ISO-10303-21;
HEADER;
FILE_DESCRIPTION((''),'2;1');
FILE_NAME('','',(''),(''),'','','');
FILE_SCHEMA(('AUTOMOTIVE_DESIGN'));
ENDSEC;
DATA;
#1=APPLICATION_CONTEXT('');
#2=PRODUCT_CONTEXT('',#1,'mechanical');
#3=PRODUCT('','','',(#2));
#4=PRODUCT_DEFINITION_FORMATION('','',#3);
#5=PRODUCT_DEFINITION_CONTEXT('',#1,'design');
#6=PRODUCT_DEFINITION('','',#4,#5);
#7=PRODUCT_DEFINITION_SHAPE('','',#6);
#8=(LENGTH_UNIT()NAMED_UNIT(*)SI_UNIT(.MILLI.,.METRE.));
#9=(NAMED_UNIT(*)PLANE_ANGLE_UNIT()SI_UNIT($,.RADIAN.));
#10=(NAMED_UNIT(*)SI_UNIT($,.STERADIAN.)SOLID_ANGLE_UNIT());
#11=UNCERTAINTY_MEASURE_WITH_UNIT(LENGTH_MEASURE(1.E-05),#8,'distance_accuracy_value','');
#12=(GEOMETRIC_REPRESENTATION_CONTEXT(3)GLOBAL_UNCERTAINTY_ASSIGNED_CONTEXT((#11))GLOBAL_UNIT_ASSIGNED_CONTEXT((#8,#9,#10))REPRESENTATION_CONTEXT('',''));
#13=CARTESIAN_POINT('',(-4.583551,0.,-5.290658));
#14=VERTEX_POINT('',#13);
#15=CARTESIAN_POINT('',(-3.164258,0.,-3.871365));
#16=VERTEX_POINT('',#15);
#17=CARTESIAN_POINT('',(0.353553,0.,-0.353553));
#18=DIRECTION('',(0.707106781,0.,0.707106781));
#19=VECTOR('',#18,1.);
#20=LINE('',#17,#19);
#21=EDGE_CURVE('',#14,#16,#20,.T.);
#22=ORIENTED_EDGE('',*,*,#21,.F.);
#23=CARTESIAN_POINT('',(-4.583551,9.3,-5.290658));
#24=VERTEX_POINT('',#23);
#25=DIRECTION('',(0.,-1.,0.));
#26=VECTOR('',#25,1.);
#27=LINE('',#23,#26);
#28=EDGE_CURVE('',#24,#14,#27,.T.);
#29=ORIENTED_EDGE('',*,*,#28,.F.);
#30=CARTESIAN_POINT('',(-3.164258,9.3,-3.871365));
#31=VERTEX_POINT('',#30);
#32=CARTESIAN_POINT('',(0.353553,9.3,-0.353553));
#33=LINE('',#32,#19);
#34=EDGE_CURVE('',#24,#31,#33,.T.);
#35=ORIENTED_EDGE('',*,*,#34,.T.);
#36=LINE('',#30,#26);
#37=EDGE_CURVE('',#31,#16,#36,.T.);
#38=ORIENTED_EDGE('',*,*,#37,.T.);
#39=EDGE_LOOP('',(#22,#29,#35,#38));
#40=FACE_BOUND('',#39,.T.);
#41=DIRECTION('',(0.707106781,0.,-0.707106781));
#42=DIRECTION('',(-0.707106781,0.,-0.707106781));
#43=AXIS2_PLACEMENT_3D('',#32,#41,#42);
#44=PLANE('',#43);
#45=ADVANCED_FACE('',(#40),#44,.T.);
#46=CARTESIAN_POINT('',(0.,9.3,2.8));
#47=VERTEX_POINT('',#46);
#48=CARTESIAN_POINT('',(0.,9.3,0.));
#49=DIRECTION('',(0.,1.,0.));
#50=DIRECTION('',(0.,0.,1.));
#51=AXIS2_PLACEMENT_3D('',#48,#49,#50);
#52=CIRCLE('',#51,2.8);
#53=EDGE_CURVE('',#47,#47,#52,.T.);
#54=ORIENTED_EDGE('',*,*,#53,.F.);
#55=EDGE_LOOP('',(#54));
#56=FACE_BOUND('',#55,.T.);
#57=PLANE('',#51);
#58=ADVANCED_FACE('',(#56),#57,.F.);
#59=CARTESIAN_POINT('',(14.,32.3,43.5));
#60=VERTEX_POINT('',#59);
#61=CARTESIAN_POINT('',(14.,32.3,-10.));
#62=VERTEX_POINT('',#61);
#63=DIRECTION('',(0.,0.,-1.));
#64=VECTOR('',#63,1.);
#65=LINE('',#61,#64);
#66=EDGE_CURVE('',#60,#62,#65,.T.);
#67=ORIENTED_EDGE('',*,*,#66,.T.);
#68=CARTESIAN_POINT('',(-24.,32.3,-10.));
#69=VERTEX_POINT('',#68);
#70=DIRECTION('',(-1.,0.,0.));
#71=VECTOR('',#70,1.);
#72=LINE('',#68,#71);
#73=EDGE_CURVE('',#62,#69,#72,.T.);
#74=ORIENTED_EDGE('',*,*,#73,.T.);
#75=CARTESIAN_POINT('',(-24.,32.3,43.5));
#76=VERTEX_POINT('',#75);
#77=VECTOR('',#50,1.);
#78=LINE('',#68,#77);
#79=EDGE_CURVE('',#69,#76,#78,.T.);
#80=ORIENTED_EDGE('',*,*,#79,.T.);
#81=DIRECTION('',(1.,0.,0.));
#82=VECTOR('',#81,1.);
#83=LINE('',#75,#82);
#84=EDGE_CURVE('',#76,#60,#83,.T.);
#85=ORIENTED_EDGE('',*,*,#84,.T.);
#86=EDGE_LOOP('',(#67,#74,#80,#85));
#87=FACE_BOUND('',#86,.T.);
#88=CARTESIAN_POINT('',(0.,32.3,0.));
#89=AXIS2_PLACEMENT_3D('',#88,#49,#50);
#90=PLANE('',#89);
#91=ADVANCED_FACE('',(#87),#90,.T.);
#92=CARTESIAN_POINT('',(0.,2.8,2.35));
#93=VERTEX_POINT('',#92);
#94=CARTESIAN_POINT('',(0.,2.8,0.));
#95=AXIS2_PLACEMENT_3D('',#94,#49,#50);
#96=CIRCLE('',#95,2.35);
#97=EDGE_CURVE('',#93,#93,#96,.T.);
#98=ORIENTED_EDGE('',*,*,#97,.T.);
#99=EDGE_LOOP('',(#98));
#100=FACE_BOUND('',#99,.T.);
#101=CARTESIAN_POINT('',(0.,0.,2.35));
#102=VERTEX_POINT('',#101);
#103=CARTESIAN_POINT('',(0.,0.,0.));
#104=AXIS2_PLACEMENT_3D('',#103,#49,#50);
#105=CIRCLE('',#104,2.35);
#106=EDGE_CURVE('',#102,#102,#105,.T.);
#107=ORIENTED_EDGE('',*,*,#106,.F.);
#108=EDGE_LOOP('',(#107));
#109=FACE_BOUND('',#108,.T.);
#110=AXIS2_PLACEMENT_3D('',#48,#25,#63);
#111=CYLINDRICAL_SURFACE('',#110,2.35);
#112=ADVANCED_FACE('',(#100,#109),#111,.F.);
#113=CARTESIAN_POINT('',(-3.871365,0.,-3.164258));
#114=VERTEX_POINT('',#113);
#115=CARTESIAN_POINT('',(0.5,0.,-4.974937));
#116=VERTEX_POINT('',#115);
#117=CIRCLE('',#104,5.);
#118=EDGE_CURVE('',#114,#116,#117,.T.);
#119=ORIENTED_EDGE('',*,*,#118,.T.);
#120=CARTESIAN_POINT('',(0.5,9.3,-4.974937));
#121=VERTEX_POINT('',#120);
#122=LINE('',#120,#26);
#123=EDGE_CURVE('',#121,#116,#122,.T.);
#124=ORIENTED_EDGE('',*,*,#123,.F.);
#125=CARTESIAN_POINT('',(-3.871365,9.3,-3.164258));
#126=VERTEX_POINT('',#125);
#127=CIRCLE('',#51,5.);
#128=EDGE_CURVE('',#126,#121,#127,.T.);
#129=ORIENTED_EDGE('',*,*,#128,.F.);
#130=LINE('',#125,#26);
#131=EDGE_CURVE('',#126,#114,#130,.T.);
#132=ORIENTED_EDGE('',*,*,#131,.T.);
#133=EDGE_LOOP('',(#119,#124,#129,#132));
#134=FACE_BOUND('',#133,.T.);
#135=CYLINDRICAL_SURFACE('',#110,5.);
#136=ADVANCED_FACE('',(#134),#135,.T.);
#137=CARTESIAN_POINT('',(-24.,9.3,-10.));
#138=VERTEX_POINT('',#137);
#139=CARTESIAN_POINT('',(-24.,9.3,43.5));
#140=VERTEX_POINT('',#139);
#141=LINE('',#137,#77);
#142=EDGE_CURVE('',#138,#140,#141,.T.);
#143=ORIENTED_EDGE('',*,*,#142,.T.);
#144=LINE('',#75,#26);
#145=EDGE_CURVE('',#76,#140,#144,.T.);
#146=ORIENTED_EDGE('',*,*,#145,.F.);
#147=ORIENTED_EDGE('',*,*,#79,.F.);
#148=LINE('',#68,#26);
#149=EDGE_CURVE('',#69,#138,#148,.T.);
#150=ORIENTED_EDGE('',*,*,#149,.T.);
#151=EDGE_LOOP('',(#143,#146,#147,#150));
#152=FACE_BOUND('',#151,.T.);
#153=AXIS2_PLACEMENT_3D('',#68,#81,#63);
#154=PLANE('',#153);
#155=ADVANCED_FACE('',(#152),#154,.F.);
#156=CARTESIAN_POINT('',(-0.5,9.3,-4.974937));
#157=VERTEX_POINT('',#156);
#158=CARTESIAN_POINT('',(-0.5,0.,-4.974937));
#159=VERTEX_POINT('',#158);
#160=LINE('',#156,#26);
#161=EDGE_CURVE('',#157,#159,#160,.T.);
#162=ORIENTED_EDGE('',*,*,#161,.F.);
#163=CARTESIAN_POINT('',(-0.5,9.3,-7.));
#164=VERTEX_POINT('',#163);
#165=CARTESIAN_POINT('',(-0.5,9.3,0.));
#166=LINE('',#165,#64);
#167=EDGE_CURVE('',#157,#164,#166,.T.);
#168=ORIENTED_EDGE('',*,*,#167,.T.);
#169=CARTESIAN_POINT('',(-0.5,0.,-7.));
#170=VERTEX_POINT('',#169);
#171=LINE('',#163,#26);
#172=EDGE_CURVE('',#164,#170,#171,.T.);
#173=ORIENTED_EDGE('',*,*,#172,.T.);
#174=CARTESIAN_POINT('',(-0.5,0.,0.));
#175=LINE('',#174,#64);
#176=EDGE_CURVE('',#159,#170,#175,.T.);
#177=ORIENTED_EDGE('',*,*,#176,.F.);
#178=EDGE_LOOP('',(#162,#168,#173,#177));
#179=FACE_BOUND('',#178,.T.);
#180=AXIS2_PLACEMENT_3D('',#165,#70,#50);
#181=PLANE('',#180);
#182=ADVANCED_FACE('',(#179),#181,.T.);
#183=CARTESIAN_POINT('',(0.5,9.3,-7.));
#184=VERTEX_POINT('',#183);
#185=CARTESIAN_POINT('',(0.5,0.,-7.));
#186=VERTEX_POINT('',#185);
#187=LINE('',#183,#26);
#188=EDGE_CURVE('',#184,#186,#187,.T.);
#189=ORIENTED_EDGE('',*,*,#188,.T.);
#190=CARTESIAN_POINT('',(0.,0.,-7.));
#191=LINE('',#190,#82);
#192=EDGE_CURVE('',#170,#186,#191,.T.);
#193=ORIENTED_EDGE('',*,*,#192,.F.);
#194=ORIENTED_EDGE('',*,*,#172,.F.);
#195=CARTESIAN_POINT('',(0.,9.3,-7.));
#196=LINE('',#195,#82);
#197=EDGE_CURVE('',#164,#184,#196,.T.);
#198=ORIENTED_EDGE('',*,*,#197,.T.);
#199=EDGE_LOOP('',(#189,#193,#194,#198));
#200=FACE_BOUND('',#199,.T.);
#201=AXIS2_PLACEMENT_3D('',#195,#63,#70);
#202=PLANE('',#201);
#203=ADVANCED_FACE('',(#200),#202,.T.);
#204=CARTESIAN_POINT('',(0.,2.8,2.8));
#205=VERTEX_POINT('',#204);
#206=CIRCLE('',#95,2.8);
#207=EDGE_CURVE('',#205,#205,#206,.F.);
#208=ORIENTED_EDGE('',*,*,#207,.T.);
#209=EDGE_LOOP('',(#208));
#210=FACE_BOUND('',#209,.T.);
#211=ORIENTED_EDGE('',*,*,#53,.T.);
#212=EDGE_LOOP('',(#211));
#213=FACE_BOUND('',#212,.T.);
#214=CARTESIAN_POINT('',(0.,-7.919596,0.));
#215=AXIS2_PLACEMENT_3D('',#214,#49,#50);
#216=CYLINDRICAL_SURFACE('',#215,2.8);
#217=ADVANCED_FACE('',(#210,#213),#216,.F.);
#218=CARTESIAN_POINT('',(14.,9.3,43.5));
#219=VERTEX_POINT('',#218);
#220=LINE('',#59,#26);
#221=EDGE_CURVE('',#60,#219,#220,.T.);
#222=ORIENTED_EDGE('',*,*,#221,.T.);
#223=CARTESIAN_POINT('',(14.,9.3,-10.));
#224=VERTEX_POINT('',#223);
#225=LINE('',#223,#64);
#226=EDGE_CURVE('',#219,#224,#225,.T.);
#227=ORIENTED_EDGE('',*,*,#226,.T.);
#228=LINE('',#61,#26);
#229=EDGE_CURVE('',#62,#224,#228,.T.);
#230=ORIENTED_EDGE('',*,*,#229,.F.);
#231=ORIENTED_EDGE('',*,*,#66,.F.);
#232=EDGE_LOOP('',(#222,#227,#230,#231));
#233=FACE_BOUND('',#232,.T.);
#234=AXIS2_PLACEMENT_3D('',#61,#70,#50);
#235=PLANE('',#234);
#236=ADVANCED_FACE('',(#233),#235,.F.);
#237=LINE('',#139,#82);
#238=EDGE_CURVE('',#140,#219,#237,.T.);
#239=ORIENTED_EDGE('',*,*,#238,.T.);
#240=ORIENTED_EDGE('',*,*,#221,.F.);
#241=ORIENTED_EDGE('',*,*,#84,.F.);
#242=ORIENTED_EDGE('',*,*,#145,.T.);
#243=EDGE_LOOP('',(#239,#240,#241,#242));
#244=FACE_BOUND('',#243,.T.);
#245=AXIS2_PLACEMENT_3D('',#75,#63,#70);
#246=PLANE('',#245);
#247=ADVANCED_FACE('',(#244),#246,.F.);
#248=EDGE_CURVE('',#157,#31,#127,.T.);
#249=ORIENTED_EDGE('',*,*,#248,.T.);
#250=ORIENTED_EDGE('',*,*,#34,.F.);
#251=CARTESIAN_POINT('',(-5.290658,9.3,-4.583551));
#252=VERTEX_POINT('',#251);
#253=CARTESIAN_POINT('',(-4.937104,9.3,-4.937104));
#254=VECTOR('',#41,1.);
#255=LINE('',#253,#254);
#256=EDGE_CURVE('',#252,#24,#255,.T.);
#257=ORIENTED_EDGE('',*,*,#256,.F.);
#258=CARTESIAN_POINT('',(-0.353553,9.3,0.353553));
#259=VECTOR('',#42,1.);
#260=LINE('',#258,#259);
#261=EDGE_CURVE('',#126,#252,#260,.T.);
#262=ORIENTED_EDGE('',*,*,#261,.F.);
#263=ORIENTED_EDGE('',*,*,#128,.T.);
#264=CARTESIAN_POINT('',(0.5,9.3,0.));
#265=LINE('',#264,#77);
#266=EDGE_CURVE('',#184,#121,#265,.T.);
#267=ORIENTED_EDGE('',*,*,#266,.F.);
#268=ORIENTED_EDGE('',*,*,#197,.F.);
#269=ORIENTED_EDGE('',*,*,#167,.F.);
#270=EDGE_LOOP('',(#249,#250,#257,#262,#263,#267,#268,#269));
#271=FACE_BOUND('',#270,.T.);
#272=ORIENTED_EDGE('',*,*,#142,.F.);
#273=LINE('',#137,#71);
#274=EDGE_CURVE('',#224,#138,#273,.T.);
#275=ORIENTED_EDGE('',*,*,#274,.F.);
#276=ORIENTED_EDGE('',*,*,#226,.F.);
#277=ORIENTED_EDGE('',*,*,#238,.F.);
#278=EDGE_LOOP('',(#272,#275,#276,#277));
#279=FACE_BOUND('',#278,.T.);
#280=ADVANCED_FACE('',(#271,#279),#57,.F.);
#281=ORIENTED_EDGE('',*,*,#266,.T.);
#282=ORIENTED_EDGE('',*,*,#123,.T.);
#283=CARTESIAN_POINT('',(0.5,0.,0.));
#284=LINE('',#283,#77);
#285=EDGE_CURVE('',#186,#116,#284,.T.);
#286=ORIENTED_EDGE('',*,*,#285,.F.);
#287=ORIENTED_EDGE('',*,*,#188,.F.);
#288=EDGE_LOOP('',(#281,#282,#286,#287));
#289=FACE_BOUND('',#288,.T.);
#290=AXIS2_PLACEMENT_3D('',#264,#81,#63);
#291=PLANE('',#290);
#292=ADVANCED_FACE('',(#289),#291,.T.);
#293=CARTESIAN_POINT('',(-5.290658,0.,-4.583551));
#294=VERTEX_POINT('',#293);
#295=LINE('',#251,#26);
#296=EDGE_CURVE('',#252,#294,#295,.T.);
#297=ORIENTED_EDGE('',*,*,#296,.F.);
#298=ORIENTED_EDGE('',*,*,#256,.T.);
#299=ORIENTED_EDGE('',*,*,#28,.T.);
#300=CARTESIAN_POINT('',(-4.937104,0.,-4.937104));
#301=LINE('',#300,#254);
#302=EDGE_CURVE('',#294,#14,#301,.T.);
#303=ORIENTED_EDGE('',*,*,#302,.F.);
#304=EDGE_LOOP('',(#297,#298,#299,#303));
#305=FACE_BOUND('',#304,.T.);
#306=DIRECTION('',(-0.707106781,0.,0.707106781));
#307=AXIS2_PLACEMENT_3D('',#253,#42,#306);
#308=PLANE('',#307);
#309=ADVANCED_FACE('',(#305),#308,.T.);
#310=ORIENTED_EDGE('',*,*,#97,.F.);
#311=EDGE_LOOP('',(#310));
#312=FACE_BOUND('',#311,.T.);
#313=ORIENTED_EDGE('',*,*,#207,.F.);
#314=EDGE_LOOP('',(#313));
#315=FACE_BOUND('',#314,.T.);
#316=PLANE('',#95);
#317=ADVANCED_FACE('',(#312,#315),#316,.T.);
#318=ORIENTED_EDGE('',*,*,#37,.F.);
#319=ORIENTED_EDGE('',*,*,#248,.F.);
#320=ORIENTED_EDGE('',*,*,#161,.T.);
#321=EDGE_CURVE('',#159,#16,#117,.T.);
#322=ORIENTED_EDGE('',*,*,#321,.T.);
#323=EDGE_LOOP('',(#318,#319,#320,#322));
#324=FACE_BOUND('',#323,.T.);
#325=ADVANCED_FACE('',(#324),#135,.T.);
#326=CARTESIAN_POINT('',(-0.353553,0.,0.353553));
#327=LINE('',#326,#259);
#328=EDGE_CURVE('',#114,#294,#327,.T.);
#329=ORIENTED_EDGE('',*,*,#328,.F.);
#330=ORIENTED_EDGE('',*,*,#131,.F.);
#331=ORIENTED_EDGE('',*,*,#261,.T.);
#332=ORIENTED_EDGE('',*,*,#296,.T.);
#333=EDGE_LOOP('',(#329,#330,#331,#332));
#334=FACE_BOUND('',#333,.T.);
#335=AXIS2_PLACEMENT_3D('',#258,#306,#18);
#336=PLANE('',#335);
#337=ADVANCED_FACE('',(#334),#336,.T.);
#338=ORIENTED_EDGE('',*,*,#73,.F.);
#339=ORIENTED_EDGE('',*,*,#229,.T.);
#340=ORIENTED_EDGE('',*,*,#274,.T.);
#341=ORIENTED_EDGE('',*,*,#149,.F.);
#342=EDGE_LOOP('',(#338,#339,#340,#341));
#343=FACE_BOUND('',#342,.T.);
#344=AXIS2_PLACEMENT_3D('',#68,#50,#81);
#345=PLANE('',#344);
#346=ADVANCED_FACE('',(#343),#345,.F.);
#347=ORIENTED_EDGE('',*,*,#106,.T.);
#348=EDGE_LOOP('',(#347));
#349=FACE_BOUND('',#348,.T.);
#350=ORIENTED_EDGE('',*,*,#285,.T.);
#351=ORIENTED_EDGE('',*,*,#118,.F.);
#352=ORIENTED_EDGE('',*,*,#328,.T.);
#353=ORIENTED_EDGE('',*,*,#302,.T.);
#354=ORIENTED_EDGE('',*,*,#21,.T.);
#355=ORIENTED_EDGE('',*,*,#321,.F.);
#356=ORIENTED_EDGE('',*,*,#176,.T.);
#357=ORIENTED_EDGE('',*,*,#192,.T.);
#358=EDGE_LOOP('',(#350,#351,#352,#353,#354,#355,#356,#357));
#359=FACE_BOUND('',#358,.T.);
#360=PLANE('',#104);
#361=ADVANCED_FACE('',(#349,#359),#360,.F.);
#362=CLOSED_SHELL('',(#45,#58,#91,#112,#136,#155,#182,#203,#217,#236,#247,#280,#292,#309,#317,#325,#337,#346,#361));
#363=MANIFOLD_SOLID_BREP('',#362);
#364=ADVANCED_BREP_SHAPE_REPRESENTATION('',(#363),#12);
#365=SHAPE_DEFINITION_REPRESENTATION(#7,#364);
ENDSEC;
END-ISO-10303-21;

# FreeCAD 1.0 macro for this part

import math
import FreeCAD as App
import Part
import Sketcher
Q = App.Units.Quantity

doc = App.newDocument("Part")
params = doc.addObject("Spreadsheet::Sheet", "Params")
for row, (alias, value) in enumerate([
    ("sketch1_radius", "5 mm"),
    ("sketch1_diameter", "4.7 mm"),
    ("sketch1_width", "1 mm"),
    ("sketch1_length", "1 mm"),
    ("pad1_length", "9.3 mm"),
    ("sketch2_diameter", "5.6 mm"),
    ("pocket1_length", "6.5 mm"),
    ("sketch3_width", "38 mm"),
    ("sketch3_height", "53.5 mm"),
    ("pad2_length", "23 mm"),
], start=1):
    params.set(f"A{row}", alias)
    params.set(f"B{row}", "=" + value)
    params.setAlias(f"B{row}", alias)

body = doc.addObject("PartDesign::Body", "Body")

# Sketch on XZ plane
sketch1 = body.newObject("Sketcher::SketchObject", "Sketch")
sketch1.AttachmentSupport = (doc.getObject("XZ_Plane"), [""])
sketch1.MapMode = "FlatFace"
sketch1.addGeometry(Part.LineSegment(App.Vector(-0.5, -7, 0), App.Vector(-0.5, -5, 0)), False)
sketch1.addGeometry(Part.ArcOfCircle(Part.Circle(App.Vector(0, 0, 0), App.Vector(0, 0, 1), 5), math.radians(-129), math.radians(-96)), False)
sketch1.addGeometry(Part.LineSegment(App.Vector(-3.2, -3.9, 0), App.Vector(-4.6, -5.3, 0)), False)
sketch1.addGeometry(Part.LineSegment(App.Vector(-4.6, -5.3, 0), App.Vector(-5.3, -4.6, 0)), False)
sketch1.addGeometry(Part.LineSegment(App.Vector(-5.3, -4.6, 0), App.Vector(-3.9, -3.2, 0)), False)
sketch1.addGeometry(Part.ArcOfCircle(Part.Circle(App.Vector(0, 0, 0), App.Vector(0, 0, 1), 5), math.radians(-84), math.radians(219)), False)
sketch1.addGeometry(Part.LineSegment(App.Vector(0.5, -5, 0), App.Vector(0.5, -7, 0)), False)
sketch1.addGeometry(Part.LineSegment(App.Vector(0.5, -7, 0), App.Vector(-0.5, -7, 0)), False)
sketch1.addGeometry(Part.Circle(App.Vector(0, 0, 0), App.Vector(0, 0, 1), 2.4), False)
sketch1.addConstraint(Sketcher.Constraint("Coincident", 0, 2, 1, 2))
sketch1.addConstraint(Sketcher.Constraint("Coincident", 1, 1, 2, 1))
sketch1.addConstraint(Sketcher.Constraint("Coincident", 2, 2, 3, 1))
sketch1.addConstraint(Sketcher.Constraint("Coincident", 3, 2, 4, 1))
sketch1.addConstraint(Sketcher.Constraint("Coincident", 4, 2, 5, 2))
sketch1.addConstraint(Sketcher.Constraint("Coincident", 5, 1, 6, 1))
sketch1.addConstraint(Sketcher.Constraint("Coincident", 6, 2, 7, 1))
sketch1.addConstraint(Sketcher.Constraint("Coincident", 7, 2, 0, 1))
sketch1.addConstraint(Sketcher.Constraint("Vertical", 0))
sketch1.addConstraint(Sketcher.Constraint("Vertical", 6))
sketch1.addConstraint(Sketcher.Constraint("Horizontal", 7))
sketch1.addConstraint(Sketcher.Constraint("Coincident", 1, 3, -1, 1))
sketch1.addConstraint(Sketcher.Constraint("Coincident", 5, 3, -1, 1))
sketch1.addConstraint(Sketcher.Constraint("Coincident", 8, 3, -1, 1))
sketch1.addConstraint(Sketcher.Constraint("Equal", 1, 5))
sketch1.addConstraint(Sketcher.Constraint("Perpendicular", 2, 3))
sketch1.addConstraint(Sketcher.Constraint("Perpendicular", 3, 4))
sketch1.addConstraint(Sketcher.Constraint("Horizontal", 0, 2, 5, 1))
sketch1.addConstraint(Sketcher.Constraint("Equal", 2, 4))
sketch1.addConstraint(Sketcher.Constraint("Radius", 1, Q("5 mm")))
sketch1.addConstraint(Sketcher.Constraint("Diameter", 8, Q("4.7 mm")))
sketch1.addConstraint(Sketcher.Constraint("DistanceX", 7, 2, 7, 1, Q("1 mm")))
sketch1.addConstraint(Sketcher.Constraint("Angle", 2, Q("-135 deg")))
sketch1.addConstraint(Sketcher.Constraint("Distance", 3, Q("1 mm")))
sketch1.addConstraint(Sketcher.Constraint("DistanceY", 6, 2, -1, 1, Q("7 mm")))
sketch1.addConstraint(Sketcher.Constraint("DistanceX", 3, 2, 1, 1, Q("2.126399 mm")))
sketch1.setExpression("Constraints[19]", "Params.sketch1_radius")
sketch1.setExpression("Constraints[20]", "Params.sketch1_diameter")
sketch1.setExpression("Constraints[21]", "Params.sketch1_width")
sketch1.setExpression("Constraints[23]", "Params.sketch1_length")
pad1 = body.newObject("PartDesign::Pad", "Pad")
pad1.Profile = sketch1
pad1.setExpression("Length", "Params.pad1_length")
pad1.Reversed = True

# Sketch on XZ plane
sketch2 = body.newObject("Sketcher::SketchObject", "Sketch001")
sketch2.AttachmentSupport = (doc.getObject("XZ_Plane"), [""])
sketch2.MapMode = "FlatFace"
sketch2.AttachmentOffset = App.Placement(App.Vector(0, 0, -9.3), App.Rotation())
sketch2.addGeometry(Part.Circle(App.Vector(0, 0, 0), App.Vector(0, 0, 1), 2.8), False)
sketch2.addConstraint(Sketcher.Constraint("Coincident", 0, 3, -1, 1))
sketch2.addConstraint(Sketcher.Constraint("Diameter", 0, Q("5.6 mm")))
sketch2.setExpression("Constraints[1]", "Params.sketch2_diameter")
pocket1 = body.newObject("PartDesign::Pocket", "Pocket")
pocket1.Profile = sketch2
pocket1.setExpression("Length", "Params.pocket1_length")
pocket1.Reversed = True

# Sketch on XZ plane
sketch3 = body.newObject("Sketcher::SketchObject", "Sketch002")
sketch3.AttachmentSupport = (doc.getObject("XZ_Plane"), [""])
sketch3.MapMode = "FlatFace"
sketch3.AttachmentOffset = App.Placement(App.Vector(0, 0, -9.3), App.Rotation())
sketch3.addGeometry(Part.LineSegment(App.Vector(-24, -10, 0), App.Vector(-24, 44, 0)), False)
sketch3.addGeometry(Part.LineSegment(App.Vector(-24, 44, 0), App.Vector(14, 44, 0)), False)
sketch3.addGeometry(Part.LineSegment(App.Vector(14, 44, 0), App.Vector(14, -10, 0)), False)
sketch3.addGeometry(Part.LineSegment(App.Vector(14, -10, 0), App.Vector(-24, -10, 0)), False)
sketch3.addConstraint(Sketcher.Constraint("Coincident", 0, 2, 1, 1))
sketch3.addConstraint(Sketcher.Constraint("Coincident", 1, 2, 2, 1))
sketch3.addConstraint(Sketcher.Constraint("Coincident", 2, 2, 3, 1))
sketch3.addConstraint(Sketcher.Constraint("Coincident", 3, 2, 0, 1))
sketch3.addConstraint(Sketcher.Constraint("Vertical", 0))
sketch3.addConstraint(Sketcher.Constraint("Horizontal", 1))
sketch3.addConstraint(Sketcher.Constraint("Vertical", 2))
sketch3.addConstraint(Sketcher.Constraint("Horizontal", 3))
sketch3.addConstraint(Sketcher.Constraint("DistanceX", 1, 1, 1, 2, Q("38 mm")))
sketch3.addConstraint(Sketcher.Constraint("DistanceY", 0, 1, 0, 2, Q("53.5 mm")))
sketch3.addConstraint(Sketcher.Constraint("DistanceX", 0, 2, -1, 1, Q("24 mm")))
sketch3.addConstraint(Sketcher.Constraint("DistanceY", 2, 2, -1, 1, Q("10 mm")))
sketch3.setExpression("Constraints[8]", "Params.sketch3_width")
sketch3.setExpression("Constraints[9]", "Params.sketch3_height")
pad2 = body.newObject("PartDesign::Pad", "Pad001")
pad2.Profile = sketch3
pad2.setExpression("Length", "Params.pad2_length")
pad2.Reversed = True

doc.recompute()
